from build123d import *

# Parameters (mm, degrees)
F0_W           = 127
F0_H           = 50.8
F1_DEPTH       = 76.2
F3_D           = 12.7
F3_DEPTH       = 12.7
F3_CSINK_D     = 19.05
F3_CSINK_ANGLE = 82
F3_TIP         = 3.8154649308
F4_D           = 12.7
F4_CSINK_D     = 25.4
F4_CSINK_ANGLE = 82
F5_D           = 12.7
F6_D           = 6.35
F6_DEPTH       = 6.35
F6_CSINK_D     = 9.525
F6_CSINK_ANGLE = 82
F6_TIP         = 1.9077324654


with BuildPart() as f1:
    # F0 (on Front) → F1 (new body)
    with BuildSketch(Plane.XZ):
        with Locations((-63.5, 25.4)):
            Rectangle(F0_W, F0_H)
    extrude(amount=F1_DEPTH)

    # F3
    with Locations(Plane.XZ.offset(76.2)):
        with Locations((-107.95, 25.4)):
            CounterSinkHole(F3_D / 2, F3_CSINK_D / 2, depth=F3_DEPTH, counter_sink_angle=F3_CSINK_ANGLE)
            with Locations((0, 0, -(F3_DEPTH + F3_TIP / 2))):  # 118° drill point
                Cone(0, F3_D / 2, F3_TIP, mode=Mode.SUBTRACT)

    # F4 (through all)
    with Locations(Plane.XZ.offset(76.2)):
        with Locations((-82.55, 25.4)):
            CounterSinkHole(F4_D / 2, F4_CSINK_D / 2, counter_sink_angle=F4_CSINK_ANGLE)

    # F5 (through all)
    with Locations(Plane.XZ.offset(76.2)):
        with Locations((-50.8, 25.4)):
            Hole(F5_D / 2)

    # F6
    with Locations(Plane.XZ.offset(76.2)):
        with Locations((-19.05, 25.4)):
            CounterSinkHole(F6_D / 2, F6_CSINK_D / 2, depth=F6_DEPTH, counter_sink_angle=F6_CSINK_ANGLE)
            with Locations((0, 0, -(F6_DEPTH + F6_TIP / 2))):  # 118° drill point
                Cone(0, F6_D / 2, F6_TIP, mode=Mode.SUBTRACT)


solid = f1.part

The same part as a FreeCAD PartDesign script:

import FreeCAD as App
import Part
import Sketcher
Q = App.Units.Quantity

doc = App.newDocument("Part")
body = doc.addObject("PartDesign::Body", "Body")

sketch1 = body.newObject("Sketcher::SketchObject", "Sketch")
sketch1.AttachmentSupport = (doc.getObject("XZ_Plane"), [""])
sketch1.MapMode = "FlatFace"
sketch1.addGeometry([
    Part.LineSegment(App.Vector(-127, 51, 0), App.Vector(-127, 0, 0)),
    Part.LineSegment(App.Vector(-127, 0, 0), App.Vector(0, 0, 0)),
    Part.LineSegment(App.Vector(0, 0, 0), App.Vector(0, 51, 0)),
    Part.LineSegment(App.Vector(0, 51, 0), App.Vector(-127, 51, 0)),
], False)
sketch1.addConstraint([
    Sketcher.Constraint("Coincident", 0, 2, 1, 1),
    Sketcher.Constraint("Coincident", 1, 2, 2, 1),
    Sketcher.Constraint("Coincident", 2, 2, 3, 1),
    Sketcher.Constraint("Coincident", 3, 2, 0, 1),
    Sketcher.Constraint("Vertical", 0),
    Sketcher.Constraint("Horizontal", 1),
    Sketcher.Constraint("Vertical", 2),
    Sketcher.Constraint("Horizontal", 3),
    Sketcher.Constraint("Coincident", 1, 2, -1, 1),
    Sketcher.Constraint("DistanceX", 1, 1, 1, 2, Q("5 in")),
    Sketcher.Constraint("DistanceY", 0, 2, 0, 1, Q("2 in")),
])
pad1 = body.newObject("PartDesign::Pad", "Pad")
pad1.Profile = sketch1
pad1.Length = Q("3 in")

sketch2 = body.newObject("Sketcher::SketchObject", "Sketch001")
sketch2.AttachmentSupport = (doc.getObject("XZ_Plane"), [""])
sketch2.MapMode = "FlatFace"
sketch2.AttachmentOffset = App.Placement(App.Vector(0, 0, 3 * 25.4), App.Rotation())
sketch2.addGeometry(Part.Circle(App.Vector(-108, 25, 0), App.Vector(0, 0, 1), 6), False)
sketch2.addConstraint([
    Sketcher.Constraint("Diameter", 0, Q("0.5 in")),
    Sketcher.Constraint("DistanceY", -1, 1, 0, 3, Q("1 in")),
    Sketcher.Constraint("DistanceX", 0, 3, -1, 1, Q("4.25 in")),
])
doc.recompute()
hole = body.newObject("PartDesign::Hole", "Hole")
hole.Profile = sketch2
hole.ThreadType = "None"
hole.Diameter = Q("0.5 in")
hole.DepthType = "Dimension"
hole.Depth = Q("0.5 in")
hole.DrillPoint = "Angled"
hole.DrillPointAngle = 118
hole.HoleCutType = "Countersink"
hole.HoleCutDiameter = Q("0.75 in")
hole.HoleCutCountersinkAngle = 82

sketch3 = body.newObject("Sketcher::SketchObject", "Sketch002")
sketch3.AttachmentSupport = (doc.getObject("XZ_Plane"), [""])
sketch3.MapMode = "FlatFace"
sketch3.AttachmentOffset = App.Placement(App.Vector(0, 0, 3 * 25.4), App.Rotation())
sketch3.addGeometry(Part.Circle(App.Vector(-83, 25, 0), App.Vector(0, 0, 1), 6), False)
sketch3.addConstraint([
    Sketcher.Constraint("Diameter", 0, Q("0.5 in")),
    Sketcher.Constraint("DistanceY", -1, 1, 0, 3, Q("1 in")),
    Sketcher.Constraint("DistanceX", 0, 3, -1, 1, Q("3.25 in")),
])
doc.recompute()
hole2 = body.newObject("PartDesign::Hole", "Hole001")
hole2.Profile = sketch3
hole2.ThreadType = "None"
hole2.Diameter = Q("0.5 in")
hole2.DepthType = "ThroughAll"
hole2.HoleCutType = "Countersink"
hole2.HoleCutDiameter = Q("1 in")
hole2.HoleCutCountersinkAngle = 82

sketch4 = body.newObject("Sketcher::SketchObject", "Sketch003")
sketch4.AttachmentSupport = (doc.getObject("XZ_Plane"), [""])
sketch4.MapMode = "FlatFace"
sketch4.AttachmentOffset = App.Placement(App.Vector(0, 0, 3 * 25.4), App.Rotation())
sketch4.addGeometry(Part.Circle(App.Vector(-51, 25, 0), App.Vector(0, 0, 1), 6), False)
sketch4.addConstraint([
    Sketcher.Constraint("Diameter", 0, Q("0.5 in")),
    Sketcher.Constraint("DistanceX", 0, 3, -1, 1, Q("2 in")),
    Sketcher.Constraint("DistanceY", -1, 1, 0, 3, Q("1 in")),
])
doc.recompute()
hole3 = body.newObject("PartDesign::Hole", "Hole002")
hole3.Profile = sketch4
hole3.ThreadType = "None"
hole3.Diameter = Q("0.5 in")
hole3.DepthType = "ThroughAll"

sketch5 = body.newObject("Sketcher::SketchObject", "Sketch004")
sketch5.AttachmentSupport = (doc.getObject("XZ_Plane"), [""])
sketch5.MapMode = "FlatFace"
sketch5.AttachmentOffset = App.Placement(App.Vector(0, 0, 3 * 25.4), App.Rotation())
sketch5.addGeometry(Part.Circle(App.Vector(-19.1, 25.4, 0), App.Vector(0, 0, 1), 3.2), False)
sketch5.addConstraint([
    Sketcher.Constraint("Diameter", 0, Q("0.25 in")),
    Sketcher.Constraint("DistanceY", -1, 1, 0, 3, Q("1 in")),
    Sketcher.Constraint("DistanceX", 0, 3, -1, 1, Q("0.75 in")),
])
doc.recompute()
hole4 = body.newObject("PartDesign::Hole", "Hole003")
hole4.Profile = sketch5
hole4.ThreadType = "None"
hole4.Diameter = Q("0.25 in")
hole4.DepthType = "Dimension"
hole4.Depth = Q("0.25 in")
hole4.DrillPoint = "Angled"
hole4.DrillPointAngle = 118
hole4.HoleCutType = "Countersink"
hole4.HoleCutDiameter = Q("0.375 in")
hole4.HoleCutCountersinkAngle = 82

doc.recompute()
